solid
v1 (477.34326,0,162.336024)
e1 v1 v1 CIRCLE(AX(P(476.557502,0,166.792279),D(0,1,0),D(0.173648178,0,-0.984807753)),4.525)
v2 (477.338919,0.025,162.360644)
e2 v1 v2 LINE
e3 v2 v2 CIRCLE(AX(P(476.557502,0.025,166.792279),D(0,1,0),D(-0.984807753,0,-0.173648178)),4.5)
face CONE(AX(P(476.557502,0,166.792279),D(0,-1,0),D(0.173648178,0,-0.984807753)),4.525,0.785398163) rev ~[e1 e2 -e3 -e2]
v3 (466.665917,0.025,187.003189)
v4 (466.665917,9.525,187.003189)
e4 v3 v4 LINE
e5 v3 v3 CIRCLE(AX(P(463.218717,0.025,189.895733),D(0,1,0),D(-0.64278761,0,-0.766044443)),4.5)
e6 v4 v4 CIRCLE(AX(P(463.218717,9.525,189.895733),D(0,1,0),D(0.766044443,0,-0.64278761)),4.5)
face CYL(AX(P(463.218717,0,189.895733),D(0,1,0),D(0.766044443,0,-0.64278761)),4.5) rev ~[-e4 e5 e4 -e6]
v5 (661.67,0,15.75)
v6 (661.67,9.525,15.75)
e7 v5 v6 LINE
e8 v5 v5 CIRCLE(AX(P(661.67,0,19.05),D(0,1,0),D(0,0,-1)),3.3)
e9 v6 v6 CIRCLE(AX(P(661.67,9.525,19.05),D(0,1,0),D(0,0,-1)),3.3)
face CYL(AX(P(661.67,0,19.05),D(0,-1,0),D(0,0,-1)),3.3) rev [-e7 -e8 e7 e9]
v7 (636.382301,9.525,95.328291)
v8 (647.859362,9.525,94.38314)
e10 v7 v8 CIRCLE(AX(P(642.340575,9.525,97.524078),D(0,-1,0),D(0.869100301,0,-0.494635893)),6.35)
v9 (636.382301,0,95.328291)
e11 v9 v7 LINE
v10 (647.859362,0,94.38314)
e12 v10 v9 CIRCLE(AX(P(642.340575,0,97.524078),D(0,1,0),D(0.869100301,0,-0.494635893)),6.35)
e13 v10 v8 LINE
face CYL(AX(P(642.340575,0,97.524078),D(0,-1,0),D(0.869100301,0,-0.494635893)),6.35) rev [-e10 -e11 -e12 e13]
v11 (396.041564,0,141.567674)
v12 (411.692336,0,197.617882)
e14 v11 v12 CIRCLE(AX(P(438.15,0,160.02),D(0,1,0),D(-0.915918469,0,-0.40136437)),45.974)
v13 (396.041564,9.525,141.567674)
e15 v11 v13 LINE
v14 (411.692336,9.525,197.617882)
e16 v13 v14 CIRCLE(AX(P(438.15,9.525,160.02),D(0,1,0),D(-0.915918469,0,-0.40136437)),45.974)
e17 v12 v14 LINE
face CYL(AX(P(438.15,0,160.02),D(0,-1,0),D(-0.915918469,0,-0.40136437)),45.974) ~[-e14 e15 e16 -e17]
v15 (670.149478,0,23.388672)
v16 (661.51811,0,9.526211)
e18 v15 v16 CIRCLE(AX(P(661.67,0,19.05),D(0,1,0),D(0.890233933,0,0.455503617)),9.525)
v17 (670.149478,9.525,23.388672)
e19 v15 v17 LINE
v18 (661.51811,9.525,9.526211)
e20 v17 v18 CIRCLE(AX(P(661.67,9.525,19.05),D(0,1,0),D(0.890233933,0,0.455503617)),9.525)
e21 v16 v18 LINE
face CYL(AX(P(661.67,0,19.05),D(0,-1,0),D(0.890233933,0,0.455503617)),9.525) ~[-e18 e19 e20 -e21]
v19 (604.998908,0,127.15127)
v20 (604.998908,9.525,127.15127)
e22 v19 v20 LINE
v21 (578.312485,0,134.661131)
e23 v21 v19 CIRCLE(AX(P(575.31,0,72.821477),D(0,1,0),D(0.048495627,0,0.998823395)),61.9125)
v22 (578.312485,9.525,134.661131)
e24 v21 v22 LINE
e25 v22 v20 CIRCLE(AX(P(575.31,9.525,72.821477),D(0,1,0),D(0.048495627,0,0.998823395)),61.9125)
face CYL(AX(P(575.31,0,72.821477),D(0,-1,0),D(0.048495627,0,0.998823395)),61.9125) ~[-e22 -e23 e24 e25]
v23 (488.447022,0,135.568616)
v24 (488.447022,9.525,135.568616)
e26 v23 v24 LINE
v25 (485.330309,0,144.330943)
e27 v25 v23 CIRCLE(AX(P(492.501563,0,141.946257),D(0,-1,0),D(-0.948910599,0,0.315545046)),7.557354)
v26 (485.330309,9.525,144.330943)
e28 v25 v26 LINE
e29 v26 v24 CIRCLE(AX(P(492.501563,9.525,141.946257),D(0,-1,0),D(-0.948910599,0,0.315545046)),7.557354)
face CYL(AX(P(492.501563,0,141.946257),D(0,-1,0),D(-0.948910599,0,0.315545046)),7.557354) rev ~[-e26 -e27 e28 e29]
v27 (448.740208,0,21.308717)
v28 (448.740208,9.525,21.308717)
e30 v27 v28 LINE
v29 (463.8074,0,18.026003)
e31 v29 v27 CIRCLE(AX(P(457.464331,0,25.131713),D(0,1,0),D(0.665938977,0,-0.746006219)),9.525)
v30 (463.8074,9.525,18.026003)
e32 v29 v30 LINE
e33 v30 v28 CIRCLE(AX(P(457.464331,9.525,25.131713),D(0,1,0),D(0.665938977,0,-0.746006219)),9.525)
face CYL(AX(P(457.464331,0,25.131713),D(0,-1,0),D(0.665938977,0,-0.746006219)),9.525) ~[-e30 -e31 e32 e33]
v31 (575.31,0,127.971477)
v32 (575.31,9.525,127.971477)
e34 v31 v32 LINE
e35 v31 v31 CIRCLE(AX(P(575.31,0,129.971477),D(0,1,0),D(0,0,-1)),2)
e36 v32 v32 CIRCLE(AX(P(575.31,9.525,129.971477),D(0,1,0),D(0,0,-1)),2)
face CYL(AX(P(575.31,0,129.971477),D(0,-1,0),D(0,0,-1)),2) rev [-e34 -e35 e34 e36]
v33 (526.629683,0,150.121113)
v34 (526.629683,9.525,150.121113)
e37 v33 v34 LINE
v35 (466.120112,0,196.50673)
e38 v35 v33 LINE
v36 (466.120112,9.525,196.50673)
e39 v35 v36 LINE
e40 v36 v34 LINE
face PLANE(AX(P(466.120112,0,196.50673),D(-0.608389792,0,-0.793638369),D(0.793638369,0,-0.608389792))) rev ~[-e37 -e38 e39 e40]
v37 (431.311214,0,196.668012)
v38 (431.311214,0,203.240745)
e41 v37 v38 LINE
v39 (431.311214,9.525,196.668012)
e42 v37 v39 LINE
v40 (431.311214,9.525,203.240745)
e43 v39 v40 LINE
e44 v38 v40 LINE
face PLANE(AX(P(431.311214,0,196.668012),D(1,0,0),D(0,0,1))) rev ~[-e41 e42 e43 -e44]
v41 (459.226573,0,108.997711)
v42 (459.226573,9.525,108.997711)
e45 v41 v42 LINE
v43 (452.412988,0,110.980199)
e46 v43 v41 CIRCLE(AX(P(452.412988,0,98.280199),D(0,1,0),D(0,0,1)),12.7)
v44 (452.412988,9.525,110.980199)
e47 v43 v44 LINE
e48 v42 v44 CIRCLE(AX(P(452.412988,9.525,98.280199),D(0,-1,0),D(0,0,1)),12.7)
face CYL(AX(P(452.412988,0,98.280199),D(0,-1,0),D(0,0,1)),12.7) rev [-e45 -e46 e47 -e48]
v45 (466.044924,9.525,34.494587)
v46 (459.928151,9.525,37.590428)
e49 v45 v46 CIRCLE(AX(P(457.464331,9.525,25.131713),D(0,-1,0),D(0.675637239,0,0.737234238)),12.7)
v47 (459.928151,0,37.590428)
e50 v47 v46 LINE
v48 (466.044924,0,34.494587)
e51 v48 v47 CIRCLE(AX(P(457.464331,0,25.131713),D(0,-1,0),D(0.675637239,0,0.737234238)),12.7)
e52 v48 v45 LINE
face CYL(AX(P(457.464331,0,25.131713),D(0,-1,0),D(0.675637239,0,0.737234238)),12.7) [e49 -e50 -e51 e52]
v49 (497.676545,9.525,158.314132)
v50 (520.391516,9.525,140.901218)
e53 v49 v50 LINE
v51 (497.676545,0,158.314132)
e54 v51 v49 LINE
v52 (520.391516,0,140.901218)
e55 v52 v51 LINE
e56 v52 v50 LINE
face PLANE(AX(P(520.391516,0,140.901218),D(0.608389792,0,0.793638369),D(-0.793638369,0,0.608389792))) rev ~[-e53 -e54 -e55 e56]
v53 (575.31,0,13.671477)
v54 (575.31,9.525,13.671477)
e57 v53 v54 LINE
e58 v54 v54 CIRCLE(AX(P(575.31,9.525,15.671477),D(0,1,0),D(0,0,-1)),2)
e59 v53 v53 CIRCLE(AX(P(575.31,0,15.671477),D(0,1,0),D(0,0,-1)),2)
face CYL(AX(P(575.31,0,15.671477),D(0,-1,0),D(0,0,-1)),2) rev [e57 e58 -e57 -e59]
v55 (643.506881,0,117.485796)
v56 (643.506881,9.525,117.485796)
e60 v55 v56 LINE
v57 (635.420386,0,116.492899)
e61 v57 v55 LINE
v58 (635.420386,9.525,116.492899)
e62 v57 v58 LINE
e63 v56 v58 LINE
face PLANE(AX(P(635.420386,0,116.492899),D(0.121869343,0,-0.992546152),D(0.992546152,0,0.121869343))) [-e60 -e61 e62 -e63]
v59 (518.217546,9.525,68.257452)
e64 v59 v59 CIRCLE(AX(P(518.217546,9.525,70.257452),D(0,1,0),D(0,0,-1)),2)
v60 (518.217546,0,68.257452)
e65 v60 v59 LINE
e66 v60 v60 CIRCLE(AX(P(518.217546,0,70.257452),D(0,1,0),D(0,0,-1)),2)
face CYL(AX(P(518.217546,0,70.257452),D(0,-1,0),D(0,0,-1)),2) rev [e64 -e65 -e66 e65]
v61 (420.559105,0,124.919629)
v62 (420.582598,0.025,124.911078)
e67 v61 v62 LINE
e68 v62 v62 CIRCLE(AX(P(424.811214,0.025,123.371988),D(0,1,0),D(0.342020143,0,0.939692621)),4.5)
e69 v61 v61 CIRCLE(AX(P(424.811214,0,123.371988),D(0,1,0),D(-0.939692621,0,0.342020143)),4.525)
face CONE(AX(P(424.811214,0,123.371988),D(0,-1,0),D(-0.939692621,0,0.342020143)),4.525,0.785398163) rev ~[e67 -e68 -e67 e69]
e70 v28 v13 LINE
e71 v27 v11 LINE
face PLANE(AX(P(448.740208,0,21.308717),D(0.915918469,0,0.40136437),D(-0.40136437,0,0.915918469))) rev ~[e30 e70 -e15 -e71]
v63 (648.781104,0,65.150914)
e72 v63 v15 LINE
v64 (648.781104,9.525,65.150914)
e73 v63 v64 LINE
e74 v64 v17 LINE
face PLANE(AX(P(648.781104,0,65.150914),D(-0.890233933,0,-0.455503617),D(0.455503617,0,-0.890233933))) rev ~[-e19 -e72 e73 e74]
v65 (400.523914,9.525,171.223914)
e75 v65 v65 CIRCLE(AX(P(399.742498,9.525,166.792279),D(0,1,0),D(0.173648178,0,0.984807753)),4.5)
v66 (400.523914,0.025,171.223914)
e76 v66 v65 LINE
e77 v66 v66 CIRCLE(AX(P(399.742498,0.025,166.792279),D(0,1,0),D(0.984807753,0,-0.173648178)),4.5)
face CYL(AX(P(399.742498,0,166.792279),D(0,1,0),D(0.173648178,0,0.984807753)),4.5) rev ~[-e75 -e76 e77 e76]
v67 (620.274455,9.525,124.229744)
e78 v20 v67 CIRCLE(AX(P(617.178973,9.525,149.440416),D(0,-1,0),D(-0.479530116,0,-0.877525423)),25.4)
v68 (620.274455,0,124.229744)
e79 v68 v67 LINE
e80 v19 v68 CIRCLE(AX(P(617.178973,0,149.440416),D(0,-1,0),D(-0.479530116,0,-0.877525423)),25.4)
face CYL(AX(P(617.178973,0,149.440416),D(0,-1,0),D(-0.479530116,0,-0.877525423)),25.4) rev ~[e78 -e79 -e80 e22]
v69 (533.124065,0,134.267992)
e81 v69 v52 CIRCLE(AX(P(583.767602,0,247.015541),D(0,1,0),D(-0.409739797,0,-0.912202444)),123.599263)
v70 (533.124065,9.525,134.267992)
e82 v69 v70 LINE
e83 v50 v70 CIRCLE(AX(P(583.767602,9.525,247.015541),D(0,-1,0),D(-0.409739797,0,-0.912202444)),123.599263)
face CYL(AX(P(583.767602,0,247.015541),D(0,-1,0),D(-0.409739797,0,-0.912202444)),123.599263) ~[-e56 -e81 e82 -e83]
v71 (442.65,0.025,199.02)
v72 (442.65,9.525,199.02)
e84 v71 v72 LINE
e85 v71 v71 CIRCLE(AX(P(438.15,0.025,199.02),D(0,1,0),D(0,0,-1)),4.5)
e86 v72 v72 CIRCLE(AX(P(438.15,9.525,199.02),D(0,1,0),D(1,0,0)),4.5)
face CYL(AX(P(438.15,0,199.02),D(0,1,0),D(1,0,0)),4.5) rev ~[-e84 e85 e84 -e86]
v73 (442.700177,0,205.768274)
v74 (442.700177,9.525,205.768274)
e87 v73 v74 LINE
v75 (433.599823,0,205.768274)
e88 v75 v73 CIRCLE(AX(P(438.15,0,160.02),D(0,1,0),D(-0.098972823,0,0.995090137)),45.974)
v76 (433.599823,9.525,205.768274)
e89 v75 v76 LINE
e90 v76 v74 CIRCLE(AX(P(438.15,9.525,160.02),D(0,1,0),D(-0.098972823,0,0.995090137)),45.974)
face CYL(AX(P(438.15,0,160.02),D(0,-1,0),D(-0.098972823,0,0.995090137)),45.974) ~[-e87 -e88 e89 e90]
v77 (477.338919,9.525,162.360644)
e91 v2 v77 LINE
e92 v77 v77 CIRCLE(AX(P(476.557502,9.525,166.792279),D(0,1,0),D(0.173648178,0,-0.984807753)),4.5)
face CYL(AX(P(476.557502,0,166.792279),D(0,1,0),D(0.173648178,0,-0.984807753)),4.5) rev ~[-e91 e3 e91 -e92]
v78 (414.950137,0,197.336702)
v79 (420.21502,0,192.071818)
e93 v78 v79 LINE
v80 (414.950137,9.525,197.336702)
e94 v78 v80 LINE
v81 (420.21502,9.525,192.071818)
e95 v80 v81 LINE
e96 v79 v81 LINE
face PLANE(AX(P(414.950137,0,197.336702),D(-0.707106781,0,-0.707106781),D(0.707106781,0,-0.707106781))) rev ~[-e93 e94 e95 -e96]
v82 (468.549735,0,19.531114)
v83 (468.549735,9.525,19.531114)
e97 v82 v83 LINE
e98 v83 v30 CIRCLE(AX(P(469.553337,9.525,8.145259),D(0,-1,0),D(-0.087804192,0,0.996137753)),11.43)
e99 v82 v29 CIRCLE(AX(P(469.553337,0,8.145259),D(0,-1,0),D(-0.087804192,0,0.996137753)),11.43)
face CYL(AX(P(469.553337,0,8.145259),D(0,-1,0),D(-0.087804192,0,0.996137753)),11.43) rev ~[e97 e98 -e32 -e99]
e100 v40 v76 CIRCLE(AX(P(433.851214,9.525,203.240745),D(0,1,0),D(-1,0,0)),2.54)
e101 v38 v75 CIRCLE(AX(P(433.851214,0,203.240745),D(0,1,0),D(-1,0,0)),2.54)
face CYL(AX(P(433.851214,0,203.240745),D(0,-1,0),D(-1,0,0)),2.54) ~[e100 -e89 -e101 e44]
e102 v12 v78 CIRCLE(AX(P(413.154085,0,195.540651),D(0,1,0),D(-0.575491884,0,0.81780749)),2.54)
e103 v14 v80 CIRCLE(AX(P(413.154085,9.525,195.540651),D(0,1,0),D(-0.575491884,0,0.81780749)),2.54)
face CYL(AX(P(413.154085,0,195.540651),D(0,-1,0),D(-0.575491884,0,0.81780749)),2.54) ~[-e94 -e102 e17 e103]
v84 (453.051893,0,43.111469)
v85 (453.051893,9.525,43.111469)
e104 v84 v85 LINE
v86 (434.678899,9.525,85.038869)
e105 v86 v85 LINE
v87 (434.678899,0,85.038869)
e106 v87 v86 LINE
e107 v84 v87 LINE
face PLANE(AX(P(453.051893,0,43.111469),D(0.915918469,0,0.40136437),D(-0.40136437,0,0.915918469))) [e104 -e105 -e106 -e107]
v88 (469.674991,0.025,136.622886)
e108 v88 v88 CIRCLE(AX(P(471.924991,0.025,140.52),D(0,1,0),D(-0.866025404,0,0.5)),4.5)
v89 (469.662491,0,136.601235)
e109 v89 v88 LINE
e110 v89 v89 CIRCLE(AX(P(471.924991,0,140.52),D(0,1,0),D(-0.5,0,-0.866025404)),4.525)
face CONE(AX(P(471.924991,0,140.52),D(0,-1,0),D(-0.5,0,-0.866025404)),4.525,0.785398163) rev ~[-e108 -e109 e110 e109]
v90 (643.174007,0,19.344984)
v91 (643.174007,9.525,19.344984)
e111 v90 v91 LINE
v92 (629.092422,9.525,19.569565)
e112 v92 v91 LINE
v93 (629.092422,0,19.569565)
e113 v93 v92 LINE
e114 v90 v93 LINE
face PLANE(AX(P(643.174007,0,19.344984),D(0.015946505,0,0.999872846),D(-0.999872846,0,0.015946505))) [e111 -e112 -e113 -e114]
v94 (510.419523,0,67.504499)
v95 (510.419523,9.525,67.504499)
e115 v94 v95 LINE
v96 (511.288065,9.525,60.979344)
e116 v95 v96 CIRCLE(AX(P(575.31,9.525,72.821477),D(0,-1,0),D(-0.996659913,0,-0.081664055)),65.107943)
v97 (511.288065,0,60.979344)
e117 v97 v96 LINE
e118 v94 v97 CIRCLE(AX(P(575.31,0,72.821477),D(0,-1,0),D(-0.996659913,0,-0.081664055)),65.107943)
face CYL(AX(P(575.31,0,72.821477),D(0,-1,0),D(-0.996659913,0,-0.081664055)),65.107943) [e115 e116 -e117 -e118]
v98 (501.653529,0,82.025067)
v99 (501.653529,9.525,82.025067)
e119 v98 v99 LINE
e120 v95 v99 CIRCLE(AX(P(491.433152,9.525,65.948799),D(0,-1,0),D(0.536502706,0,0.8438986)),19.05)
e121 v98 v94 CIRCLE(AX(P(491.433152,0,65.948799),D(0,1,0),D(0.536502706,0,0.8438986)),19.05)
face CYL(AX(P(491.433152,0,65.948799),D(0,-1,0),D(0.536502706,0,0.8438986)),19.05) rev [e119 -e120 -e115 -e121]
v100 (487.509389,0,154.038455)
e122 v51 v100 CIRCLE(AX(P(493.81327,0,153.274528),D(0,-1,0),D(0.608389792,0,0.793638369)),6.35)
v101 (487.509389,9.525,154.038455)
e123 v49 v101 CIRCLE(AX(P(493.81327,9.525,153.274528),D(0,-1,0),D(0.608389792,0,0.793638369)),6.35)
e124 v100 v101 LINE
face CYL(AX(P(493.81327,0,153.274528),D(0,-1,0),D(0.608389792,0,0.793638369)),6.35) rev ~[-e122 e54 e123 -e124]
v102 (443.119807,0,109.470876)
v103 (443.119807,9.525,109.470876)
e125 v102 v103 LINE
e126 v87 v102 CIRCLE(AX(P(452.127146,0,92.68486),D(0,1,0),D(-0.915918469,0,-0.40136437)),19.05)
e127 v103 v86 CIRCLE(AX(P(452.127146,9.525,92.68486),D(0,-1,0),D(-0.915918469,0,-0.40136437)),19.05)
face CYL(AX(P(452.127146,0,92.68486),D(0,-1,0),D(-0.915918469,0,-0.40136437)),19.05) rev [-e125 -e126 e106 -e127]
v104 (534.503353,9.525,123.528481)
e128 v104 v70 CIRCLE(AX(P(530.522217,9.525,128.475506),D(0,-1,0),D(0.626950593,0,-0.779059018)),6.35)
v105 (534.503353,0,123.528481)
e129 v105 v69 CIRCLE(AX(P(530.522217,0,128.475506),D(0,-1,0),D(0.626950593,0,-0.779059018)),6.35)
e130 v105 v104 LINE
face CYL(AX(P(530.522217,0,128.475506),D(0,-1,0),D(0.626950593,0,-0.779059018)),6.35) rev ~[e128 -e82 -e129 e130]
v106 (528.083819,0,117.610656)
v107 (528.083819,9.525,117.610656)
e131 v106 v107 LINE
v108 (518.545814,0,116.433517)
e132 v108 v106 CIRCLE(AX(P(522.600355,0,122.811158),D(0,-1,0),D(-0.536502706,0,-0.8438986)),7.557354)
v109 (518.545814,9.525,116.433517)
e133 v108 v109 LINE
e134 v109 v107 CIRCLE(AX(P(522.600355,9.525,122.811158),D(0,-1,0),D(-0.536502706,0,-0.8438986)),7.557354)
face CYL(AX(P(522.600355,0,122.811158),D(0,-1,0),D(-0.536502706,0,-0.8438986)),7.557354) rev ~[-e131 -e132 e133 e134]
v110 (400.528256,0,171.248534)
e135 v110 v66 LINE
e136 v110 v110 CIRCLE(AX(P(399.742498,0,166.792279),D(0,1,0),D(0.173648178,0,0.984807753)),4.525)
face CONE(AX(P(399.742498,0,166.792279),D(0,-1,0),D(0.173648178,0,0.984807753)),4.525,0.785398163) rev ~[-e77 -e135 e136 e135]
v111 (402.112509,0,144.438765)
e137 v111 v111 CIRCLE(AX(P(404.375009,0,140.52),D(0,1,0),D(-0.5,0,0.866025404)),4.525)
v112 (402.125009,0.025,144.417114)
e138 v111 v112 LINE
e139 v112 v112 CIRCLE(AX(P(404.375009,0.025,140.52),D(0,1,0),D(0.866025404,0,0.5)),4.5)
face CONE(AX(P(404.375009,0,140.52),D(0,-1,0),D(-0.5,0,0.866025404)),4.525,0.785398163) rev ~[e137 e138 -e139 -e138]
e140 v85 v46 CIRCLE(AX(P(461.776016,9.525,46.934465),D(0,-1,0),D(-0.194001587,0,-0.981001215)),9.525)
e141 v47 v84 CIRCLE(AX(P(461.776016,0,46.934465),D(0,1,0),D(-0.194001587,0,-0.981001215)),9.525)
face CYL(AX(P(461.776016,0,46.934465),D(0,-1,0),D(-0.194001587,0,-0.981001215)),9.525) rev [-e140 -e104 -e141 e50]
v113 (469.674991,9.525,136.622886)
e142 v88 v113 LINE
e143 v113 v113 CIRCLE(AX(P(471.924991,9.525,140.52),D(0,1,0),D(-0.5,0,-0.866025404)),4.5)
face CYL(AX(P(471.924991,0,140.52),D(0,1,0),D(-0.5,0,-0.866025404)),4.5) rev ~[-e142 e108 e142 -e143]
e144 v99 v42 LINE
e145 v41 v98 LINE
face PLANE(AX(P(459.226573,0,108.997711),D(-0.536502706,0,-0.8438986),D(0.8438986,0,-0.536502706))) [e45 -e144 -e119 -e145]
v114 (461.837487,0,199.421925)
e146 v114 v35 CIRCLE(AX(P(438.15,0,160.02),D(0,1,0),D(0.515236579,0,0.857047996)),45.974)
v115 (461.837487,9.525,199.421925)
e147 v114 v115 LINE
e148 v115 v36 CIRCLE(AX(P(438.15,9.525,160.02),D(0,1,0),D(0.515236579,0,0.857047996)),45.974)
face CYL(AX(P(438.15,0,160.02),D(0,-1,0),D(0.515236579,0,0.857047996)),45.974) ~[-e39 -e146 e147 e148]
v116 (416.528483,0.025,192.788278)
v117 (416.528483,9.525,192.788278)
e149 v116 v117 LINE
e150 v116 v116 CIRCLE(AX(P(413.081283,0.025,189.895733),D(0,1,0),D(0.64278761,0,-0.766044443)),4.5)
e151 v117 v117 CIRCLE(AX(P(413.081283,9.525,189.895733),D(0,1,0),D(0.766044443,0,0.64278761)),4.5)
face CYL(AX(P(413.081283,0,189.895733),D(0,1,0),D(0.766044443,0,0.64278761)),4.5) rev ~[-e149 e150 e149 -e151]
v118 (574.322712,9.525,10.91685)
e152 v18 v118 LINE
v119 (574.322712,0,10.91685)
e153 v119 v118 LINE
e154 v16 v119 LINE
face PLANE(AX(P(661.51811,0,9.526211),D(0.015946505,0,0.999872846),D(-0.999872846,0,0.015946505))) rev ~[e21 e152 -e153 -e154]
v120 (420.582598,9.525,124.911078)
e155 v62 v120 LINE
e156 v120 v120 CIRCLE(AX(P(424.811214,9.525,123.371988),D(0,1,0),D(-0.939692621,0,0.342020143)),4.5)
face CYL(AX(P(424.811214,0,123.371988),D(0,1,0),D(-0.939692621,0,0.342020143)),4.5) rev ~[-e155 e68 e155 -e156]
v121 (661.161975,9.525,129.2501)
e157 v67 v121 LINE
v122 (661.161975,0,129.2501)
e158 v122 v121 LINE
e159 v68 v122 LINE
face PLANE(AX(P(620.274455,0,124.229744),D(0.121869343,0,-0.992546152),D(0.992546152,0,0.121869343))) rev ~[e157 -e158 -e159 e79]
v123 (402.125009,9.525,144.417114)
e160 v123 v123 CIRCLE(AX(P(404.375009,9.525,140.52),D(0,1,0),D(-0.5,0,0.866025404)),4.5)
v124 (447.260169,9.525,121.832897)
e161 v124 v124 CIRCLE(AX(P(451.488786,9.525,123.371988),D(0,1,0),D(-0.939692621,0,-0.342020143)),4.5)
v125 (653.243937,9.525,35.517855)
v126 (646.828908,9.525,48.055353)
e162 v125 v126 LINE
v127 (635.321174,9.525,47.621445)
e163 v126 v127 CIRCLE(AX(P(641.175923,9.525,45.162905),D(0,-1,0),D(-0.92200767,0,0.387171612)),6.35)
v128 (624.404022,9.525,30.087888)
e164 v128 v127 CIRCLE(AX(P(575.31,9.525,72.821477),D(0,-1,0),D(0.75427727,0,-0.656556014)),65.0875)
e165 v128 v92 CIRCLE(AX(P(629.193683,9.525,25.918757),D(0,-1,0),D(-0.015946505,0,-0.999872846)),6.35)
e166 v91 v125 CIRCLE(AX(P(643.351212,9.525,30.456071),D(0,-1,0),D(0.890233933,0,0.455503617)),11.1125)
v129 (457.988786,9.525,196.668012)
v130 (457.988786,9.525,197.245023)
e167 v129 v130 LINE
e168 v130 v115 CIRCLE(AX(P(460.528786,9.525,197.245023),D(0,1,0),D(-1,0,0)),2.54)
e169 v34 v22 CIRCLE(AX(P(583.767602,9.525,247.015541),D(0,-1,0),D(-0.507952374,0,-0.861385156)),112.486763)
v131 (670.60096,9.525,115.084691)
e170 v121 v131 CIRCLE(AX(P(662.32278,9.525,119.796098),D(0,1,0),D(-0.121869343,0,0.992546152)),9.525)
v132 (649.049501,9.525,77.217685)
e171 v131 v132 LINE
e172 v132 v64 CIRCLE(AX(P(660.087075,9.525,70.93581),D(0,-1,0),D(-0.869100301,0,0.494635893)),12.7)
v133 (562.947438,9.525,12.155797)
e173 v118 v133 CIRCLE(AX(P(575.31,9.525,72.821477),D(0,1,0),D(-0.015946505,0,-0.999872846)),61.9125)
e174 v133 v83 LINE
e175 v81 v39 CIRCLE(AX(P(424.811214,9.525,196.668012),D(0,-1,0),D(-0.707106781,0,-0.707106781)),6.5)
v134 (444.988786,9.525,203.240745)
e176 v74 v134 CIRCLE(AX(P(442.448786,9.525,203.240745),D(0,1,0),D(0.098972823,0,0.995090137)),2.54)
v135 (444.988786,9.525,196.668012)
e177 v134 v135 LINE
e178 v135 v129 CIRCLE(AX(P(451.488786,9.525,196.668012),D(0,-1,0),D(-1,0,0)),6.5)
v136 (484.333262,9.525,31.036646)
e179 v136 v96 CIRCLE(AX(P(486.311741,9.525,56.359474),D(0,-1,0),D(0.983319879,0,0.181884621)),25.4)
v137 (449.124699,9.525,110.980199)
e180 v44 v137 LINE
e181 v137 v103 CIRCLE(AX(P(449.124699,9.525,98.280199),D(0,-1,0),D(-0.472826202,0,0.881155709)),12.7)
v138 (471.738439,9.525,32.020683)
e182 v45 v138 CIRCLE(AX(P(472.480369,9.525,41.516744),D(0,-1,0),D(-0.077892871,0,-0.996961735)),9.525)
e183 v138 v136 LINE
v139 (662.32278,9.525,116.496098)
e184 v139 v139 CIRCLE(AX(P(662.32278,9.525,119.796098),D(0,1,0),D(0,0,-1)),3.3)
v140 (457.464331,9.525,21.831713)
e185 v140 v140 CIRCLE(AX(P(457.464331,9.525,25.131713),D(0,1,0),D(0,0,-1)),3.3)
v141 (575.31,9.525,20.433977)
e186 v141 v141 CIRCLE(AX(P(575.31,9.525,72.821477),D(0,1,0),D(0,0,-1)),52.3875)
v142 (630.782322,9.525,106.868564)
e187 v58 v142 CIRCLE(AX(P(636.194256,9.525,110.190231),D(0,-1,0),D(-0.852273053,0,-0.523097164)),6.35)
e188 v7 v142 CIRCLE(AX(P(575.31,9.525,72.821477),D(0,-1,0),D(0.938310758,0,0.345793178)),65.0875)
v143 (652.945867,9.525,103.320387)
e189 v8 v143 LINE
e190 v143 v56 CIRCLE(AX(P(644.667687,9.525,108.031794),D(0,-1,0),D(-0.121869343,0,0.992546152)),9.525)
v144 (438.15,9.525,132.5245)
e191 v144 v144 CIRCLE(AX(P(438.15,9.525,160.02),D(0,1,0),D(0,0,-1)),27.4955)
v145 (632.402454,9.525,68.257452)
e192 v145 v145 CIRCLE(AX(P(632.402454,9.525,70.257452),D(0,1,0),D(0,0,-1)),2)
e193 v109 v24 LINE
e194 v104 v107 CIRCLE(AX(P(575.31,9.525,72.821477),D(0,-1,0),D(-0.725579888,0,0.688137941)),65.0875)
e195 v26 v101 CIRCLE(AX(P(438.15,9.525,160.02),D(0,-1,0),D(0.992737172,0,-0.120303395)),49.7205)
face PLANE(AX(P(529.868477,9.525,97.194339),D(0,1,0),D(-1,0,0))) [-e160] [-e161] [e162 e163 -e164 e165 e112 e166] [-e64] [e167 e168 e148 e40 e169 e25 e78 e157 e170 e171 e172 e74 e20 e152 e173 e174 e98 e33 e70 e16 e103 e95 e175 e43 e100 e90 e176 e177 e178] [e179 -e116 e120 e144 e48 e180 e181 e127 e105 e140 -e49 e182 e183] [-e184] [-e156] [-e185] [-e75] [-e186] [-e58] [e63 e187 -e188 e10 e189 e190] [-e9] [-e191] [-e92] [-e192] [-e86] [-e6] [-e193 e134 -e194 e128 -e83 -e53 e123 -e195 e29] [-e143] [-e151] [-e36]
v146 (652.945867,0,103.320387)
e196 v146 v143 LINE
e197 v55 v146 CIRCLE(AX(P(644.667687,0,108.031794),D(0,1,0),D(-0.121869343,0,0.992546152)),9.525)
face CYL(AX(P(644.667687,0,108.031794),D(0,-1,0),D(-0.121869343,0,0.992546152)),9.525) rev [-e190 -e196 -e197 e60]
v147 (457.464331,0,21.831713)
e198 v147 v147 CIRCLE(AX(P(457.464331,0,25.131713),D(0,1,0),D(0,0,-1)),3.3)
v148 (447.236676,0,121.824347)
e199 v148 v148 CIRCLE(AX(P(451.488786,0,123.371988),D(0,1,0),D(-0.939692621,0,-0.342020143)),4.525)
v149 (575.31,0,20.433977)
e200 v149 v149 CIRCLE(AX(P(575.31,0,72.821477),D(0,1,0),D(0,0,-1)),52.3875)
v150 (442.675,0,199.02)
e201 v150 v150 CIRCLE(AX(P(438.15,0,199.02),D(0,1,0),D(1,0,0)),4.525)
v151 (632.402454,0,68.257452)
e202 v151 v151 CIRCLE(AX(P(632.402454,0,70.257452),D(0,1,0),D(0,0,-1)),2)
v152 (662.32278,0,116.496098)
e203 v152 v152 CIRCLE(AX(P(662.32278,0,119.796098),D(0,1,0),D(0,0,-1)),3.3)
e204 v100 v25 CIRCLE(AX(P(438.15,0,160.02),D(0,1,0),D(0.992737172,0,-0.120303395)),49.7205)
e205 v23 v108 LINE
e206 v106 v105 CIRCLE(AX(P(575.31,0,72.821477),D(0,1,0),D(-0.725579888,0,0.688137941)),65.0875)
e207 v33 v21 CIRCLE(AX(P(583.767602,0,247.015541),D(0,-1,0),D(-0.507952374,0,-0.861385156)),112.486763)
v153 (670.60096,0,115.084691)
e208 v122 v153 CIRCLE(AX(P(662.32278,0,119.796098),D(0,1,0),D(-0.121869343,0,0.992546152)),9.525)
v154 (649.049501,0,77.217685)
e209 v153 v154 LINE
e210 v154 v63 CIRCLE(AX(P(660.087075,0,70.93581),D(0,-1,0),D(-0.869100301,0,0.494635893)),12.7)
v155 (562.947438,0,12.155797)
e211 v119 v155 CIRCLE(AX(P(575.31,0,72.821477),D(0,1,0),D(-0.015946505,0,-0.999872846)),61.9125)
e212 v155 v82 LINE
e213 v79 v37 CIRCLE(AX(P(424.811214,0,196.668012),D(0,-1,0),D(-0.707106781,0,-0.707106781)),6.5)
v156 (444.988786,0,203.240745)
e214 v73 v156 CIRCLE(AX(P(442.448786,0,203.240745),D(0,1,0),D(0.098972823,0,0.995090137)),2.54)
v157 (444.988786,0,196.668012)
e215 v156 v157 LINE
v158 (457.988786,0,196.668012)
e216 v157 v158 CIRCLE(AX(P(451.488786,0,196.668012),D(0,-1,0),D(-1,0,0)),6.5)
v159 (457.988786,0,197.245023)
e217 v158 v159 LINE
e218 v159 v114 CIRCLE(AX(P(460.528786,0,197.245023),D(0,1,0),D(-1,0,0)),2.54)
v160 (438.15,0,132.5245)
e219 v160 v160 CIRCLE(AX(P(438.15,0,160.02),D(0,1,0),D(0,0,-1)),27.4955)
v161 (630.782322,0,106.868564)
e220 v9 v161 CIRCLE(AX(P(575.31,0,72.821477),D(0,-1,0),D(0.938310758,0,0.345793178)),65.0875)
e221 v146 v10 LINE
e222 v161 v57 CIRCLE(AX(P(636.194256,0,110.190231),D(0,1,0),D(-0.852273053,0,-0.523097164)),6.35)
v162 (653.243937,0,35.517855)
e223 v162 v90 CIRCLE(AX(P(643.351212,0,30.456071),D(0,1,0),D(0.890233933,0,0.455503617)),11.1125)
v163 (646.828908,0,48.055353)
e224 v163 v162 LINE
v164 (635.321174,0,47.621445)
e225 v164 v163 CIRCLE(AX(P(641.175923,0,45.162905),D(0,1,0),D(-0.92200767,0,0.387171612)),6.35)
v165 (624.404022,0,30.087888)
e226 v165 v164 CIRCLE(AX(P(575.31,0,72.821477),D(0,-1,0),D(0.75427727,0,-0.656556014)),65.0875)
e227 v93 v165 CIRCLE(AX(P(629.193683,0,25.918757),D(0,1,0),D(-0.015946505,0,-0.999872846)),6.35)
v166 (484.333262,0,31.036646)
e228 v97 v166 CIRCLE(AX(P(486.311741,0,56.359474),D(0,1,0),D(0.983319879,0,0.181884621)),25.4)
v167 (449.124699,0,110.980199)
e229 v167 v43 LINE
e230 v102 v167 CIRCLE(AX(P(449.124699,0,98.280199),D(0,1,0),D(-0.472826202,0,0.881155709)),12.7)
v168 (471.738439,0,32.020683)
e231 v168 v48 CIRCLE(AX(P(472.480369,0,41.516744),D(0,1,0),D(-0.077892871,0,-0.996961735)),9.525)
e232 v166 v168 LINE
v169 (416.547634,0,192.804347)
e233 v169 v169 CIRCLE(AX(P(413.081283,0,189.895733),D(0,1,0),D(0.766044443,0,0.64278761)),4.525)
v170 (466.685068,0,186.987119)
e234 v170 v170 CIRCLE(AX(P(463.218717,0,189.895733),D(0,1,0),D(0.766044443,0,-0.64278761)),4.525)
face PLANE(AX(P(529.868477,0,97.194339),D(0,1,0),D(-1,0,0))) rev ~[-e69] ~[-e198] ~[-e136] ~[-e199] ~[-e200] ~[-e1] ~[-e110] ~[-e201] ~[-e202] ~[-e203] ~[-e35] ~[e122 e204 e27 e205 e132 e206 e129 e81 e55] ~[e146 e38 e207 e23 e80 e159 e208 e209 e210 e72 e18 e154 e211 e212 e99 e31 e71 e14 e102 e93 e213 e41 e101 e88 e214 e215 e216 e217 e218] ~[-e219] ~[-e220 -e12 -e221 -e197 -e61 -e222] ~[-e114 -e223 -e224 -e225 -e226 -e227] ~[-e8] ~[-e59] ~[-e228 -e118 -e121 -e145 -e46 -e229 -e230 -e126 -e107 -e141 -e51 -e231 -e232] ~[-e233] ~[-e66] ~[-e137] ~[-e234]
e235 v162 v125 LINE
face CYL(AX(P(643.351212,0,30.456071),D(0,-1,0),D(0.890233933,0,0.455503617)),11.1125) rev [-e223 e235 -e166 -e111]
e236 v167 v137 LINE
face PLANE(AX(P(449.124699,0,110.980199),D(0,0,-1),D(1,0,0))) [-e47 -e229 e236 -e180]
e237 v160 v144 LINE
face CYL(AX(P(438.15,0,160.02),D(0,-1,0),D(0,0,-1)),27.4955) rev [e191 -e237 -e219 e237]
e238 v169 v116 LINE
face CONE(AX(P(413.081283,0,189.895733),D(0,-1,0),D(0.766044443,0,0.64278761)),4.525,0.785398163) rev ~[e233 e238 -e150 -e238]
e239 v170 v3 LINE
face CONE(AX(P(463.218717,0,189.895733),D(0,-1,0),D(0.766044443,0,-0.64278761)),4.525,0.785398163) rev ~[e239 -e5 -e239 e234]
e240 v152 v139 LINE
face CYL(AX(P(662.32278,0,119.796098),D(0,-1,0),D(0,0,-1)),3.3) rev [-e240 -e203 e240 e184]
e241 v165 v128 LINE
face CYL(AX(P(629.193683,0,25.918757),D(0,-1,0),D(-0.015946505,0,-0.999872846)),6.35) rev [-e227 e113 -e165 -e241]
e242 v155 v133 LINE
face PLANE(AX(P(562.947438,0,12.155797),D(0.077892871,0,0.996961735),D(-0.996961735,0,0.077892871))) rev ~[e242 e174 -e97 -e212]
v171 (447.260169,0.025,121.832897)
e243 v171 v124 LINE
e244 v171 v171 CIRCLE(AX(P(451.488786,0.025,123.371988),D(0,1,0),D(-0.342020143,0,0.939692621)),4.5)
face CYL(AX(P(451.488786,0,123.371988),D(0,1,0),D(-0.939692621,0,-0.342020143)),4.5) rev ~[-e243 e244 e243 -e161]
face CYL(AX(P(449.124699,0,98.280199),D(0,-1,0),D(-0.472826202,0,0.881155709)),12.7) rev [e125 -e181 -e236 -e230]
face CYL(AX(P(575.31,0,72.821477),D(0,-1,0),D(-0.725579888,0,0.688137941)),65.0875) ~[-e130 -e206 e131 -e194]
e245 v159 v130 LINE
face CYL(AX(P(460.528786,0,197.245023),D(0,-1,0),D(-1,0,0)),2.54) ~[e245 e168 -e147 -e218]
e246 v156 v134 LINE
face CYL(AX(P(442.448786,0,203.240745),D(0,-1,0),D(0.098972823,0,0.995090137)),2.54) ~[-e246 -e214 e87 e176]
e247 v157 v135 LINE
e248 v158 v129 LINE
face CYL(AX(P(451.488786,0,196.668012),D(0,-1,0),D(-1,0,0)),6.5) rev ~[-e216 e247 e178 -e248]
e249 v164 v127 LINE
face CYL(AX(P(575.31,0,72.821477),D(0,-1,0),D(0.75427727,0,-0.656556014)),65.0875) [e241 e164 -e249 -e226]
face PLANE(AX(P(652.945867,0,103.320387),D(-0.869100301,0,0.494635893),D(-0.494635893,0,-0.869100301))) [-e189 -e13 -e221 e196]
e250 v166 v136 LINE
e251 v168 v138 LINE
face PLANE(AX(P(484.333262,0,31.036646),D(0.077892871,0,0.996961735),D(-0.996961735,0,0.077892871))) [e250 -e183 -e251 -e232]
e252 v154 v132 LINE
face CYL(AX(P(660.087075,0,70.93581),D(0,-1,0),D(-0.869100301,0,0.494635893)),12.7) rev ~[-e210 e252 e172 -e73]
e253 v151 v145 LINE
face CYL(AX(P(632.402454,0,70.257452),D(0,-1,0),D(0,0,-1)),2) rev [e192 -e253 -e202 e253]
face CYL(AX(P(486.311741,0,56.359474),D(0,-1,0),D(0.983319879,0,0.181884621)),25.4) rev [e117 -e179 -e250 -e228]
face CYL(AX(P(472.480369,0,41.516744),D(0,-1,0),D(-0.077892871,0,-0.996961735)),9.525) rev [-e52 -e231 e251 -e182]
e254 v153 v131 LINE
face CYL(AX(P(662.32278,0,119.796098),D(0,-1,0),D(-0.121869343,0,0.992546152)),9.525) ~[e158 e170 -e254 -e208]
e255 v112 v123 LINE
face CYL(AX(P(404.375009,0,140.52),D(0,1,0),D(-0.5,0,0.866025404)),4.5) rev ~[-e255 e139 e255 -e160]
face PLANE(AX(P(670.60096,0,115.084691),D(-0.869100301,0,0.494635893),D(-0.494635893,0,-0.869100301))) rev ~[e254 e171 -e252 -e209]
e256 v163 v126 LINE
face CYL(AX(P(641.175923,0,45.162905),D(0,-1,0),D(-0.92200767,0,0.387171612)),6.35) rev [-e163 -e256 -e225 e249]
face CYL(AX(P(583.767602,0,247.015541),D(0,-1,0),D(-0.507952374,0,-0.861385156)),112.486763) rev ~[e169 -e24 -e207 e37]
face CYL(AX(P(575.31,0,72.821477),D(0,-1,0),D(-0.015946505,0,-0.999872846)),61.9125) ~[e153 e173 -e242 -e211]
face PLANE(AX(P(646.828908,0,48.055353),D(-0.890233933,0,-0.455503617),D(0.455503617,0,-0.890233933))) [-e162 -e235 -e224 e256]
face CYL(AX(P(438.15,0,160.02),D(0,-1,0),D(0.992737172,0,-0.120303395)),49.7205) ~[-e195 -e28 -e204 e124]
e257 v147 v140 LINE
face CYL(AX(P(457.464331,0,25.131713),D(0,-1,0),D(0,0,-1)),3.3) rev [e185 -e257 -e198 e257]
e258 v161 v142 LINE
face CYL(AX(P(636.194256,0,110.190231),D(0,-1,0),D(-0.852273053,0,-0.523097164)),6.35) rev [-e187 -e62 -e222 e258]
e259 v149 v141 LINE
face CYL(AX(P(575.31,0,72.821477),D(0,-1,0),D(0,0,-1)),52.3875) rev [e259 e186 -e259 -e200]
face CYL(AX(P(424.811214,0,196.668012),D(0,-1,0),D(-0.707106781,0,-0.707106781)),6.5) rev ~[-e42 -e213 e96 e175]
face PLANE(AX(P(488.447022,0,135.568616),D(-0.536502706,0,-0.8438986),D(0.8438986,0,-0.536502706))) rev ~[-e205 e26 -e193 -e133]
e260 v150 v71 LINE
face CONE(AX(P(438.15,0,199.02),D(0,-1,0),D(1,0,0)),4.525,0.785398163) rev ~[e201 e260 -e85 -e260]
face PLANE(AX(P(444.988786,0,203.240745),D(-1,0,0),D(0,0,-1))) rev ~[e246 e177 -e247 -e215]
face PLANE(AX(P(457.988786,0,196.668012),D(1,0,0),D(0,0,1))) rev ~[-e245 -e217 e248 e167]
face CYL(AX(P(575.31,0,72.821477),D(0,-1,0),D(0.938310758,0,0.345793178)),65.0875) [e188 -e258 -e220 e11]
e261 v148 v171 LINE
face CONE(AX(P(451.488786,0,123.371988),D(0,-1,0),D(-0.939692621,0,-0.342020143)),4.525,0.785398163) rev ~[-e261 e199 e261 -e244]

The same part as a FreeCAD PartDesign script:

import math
import FreeCAD as App
import Part
import Sketcher
from FreeCAD import Vector
Q = App.Units.Quantity

doc = App.newDocument("Part")
body = doc.addObject("PartDesign::Body", "Body")

sketch1 = body.newObject("Sketcher::SketchObject", "Sketch")
sketch1.AttachmentSupport = (doc.getObject("XZ_Plane"), [""])
sketch1.MapMode = "FlatFace"
sketch1.addGeometry([
    Part.LineSegment(Vector(661.5, 9.5, 0), Vector(574.3, 10.9, 0)),
    Part.ArcOfCircle(Part.Circle(Vector(575.3, 72.8, 0), Vector(0, 0, 1), 61.9), math.radians(-101.52), math.radians(-90.91)),
    Part.LineSegment(Vector(562.9, 12.2, 0), Vector(468.5, 19.5, 0)),
    Part.ArcOfCircle(Part.Circle(Vector(469.6, 8.1, 0), Vector(0, 0, 1), 11.4), math.radians(95), math.radians(120)),
    Part.ArcOfCircle(Part.Circle(Vector(457.5, 25.1, 0), Vector(0, 0, 1), 9.5), math.radians(-156), math.radians(-48)),
    Part.LineSegment(Vector(448.7, 21.3, 0), Vector(396, 141.6, 0)),
    Part.ArcOfCircle(Part.Circle(Vector(438.2, 160, 0), Vector(0, 0, 1), 46), math.radians(125), math.radians(204)),
    Part.ArcOfCircle(Part.Circle(Vector(413.2, 195.5, 0), Vector(0, 0, 1), 2.5), math.radians(45), math.radians(125)),
    Part.LineSegment(Vector(415, 197.3, 0), Vector(420.2, 192.1, 0)),
    Part.ArcOfCircle(Part.Circle(Vector(424.8, 196.7, 0), Vector(0, 0, 1), 6.5), math.radians(-135), math.radians(0)),
    Part.LineSegment(Vector(431.3, 196.7, 0), Vector(431.3, 203.2, 0)),
    Part.ArcOfCircle(Part.Circle(Vector(433.9, 203.2, 0), Vector(0, 0, 1), 2.5), math.radians(96), math.radians(180)),
    Part.ArcOfCircle(Part.Circle(Vector(438.1, 160, 0), Vector(0, 0, 1), 46), math.radians(84.32), math.radians(95.68)),
    Part.ArcOfCircle(Part.Circle(Vector(442.4, 203.2, 0), Vector(0, 0, 1), 2.5), math.radians(0), math.radians(84)),
    Part.LineSegment(Vector(445, 203.2, 0), Vector(445, 196.7, 0)),
    Part.ArcOfCircle(Part.Circle(Vector(451.5, 196.7, 0), Vector(0, 0, 1), 6.5), math.radians(180), math.radians(360)),
    Part.LineSegment(Vector(458, 196.7, 0), Vector(458, 197.2, 0)),
    Part.ArcOfCircle(Part.Circle(Vector(460.5, 197.2, 0), Vector(0, 0, 1), 2.5), math.radians(59), math.radians(180)),
    Part.ArcOfCircle(Part.Circle(Vector(438.2, 160, 0), Vector(0, 0, 1), 46), math.radians(52.53), math.radians(58.99)),
    Part.LineSegment(Vector(466.1, 196.5, 0), Vector(526.6, 150.1, 0)),
    Part.ArcOfCircle(Part.Circle(Vector(583.8, 247, 0), Vector(0, 0, 1), 112.5), math.radians(-121), math.radians(-93)),
    Part.ArcOfCircle(Part.Circle(Vector(575.3, 72.8, 0), Vector(0, 0, 1), 61.9), math.radians(61), math.radians(87)),
    Part.ArcOfCircle(Part.Circle(Vector(617.2, 149.4, 0), Vector(0, 0, 1), 25.4), math.radians(-119), math.radians(-83)),
    Part.LineSegment(Vector(620.3, 124.2, 0), Vector(661.2, 129.3, 0)),
    Part.ArcOfCircle(Part.Circle(Vector(662.3, 119.8, 0), Vector(0, 0, 1), 9.5), math.radians(-30), math.radians(97)),
    Part.LineSegment(Vector(670.6, 115.1, 0), Vector(649, 77.2, 0)),
    Part.ArcOfCircle(Part.Circle(Vector(660.1, 70.9, 0), Vector(0, 0, 1), 12.7), math.radians(150), math.radians(207)),
    Part.LineSegment(Vector(648.8, 65.2, 0), Vector(670.1, 23.4, 0)),
    Part.ArcOfCircle(Part.Circle(Vector(661.7, 19.1, 0), Vector(0, 0, 1), 9.5), math.radians(-91), math.radians(27)),
    Part.Circle(Vector(661.7, 19.1, 0), Vector(0, 0, 1), 3.3),
    Part.Circle(Vector(575.3, 15.7, 0), Vector(0, 0, 1), 2),
    Part.Circle(Vector(632.4, 70.3, 0), Vector(0, 0, 1), 2),
    Part.Circle(Vector(575.3, 72.8, 0), Vector(0, 0, 1), 52.4),
    Part.Circle(Vector(457.5, 25.1, 0), Vector(0, 0, 1), 3.3),
    Part.Circle(Vector(518.2, 70.3, 0), Vector(0, 0, 1), 2),
    Part.Circle(Vector(662.3, 119.8, 0), Vector(0, 0, 1), 3.3),
    Part.Circle(Vector(575.3, 130, 0), Vector(0, 0, 1), 2),
    Part.Circle(Vector(438.1, 160, 0), Vector(0, 0, 1), 27.5),
], False)
sketch1.addConstraint([
    Sketcher.Constraint("Tangent", 0, 2, 1, 2),
    Sketcher.Constraint("Coincident", 1, 1, 2, 1),
    Sketcher.Constraint("Coincident", 2, 2, 3, 1),
    Sketcher.Constraint("Coincident", 3, 2, 4, 2),
    Sketcher.Constraint("Tangent", 4, 1, 5, 1),
    Sketcher.Constraint("Tangent", 5, 2, 6, 2),
    Sketcher.Constraint("Tangent", 6, 1, 7, 2),
    Sketcher.Constraint("Tangent", 7, 1, 8, 1),
    Sketcher.Constraint("Tangent", 8, 2, 9, 1),
    Sketcher.Constraint("Tangent", 9, 2, 10, 1),
    Sketcher.Constraint("Tangent", 10, 2, 11, 2),
    Sketcher.Constraint("Tangent", 11, 1, 12, 2),
    Sketcher.Constraint("Tangent", 12, 1, 13, 2),
    Sketcher.Constraint("Tangent", 13, 1, 14, 1),
    Sketcher.Constraint("Tangent", 14, 2, 15, 1),
    Sketcher.Constraint("Tangent", 15, 2, 16, 1),
    Sketcher.Constraint("Tangent", 16, 2, 17, 2),
    Sketcher.Constraint("Tangent", 17, 1, 18, 2),
    Sketcher.Constraint("Tangent", 18, 1, 19, 1),
    Sketcher.Constraint("Coincident", 19, 2, 20, 1),
    Sketcher.Constraint("Tangent", 20, 2, 21, 2),
    Sketcher.Constraint("Tangent", 21, 1, 22, 1),
    Sketcher.Constraint("Tangent", 22, 2, 23, 1),
    Sketcher.Constraint("Tangent", 23, 2, 24, 2),
    Sketcher.Constraint("Tangent", 24, 1, 25, 1),
    Sketcher.Constraint("Tangent", 25, 2, 26, 1),
    Sketcher.Constraint("Tangent", 26, 2, 27, 1),
    Sketcher.Constraint("Tangent", 27, 2, 28, 2),
    Sketcher.Constraint("Tangent", 28, 1, 0, 1),
    Sketcher.Constraint("Vertical", 10),
    Sketcher.Constraint("Vertical", 14),
    Sketcher.Constraint("Vertical", 16),
    Sketcher.Constraint("Coincident", 12, 3, 6, 3),
    Sketcher.Constraint("Coincident", 18, 3, 6, 3),
    Sketcher.Constraint("Coincident", 21, 3, 1, 3),
    Sketcher.Constraint("Coincident", 29, 3, 28, 3),
    Sketcher.Constraint("Coincident", 32, 3, 1, 3),
    Sketcher.Constraint("Coincident", 33, 3, 4, 3),
    Sketcher.Constraint("Coincident", 35, 3, 24, 3),
    Sketcher.Constraint("Coincident", 37, 3, 6, 3),
    Sketcher.Constraint("Equal", 7, 11),
    Sketcher.Constraint("Equal", 6, 12),
    Sketcher.Constraint("Equal", 11, 13),
    Sketcher.Constraint("Equal", 9, 15),
    Sketcher.Constraint("Equal", 13, 17),
    Sketcher.Constraint("Equal", 12, 18),
    Sketcher.Constraint("Equal", 1, 21),
    Sketcher.Constraint("Equal", 4, 24),
    Sketcher.Constraint("Equal", 24, 28),
    Sketcher.Constraint("Equal", 30, 31),
    Sketcher.Constraint("Equal", 29, 33),
    Sketcher.Constraint("Equal", 31, 34),
    Sketcher.Constraint("Equal", 33, 35),
    Sketcher.Constraint("Equal", 34, 36),
    Sketcher.Constraint("Horizontal", 11, 3, 13, 3),
    Sketcher.Constraint("Horizontal", 9, 3, 15, 3),
    Sketcher.Constraint("Horizontal", 31, 3, 34, 3),
    Sketcher.Constraint("Vertical", 21, 3, 30, 3),
    Sketcher.Constraint("Vertical", 32, 3, 36, 3),
    Sketcher.Constraint("Radius", 22, Q("1 in")),
    Sketcher.Constraint("Radius", 7, Q("0.1 in")),
    Sketcher.Constraint("Radius", 26, Q("0.5 in")),
    Sketcher.Constraint("Radius", 3, Q("0.45 in")),
    Sketcher.Constraint("Radius", 6, Q("1.81 in")),
    Sketcher.Constraint("Diameter", 32, Q("4.125 in")),
    Sketcher.Constraint("Diameter", 37, Q("2.165 in")),
    Sketcher.Constraint("Angle", 8, Q("-45 deg")),
    Sketcher.Constraint("Angle", 23, Q("7 deg")),
    Sketcher.Constraint("Radius", 1, Q("2.4375 in")),
    Sketcher.Constraint("Radius", 4, Q("0.375 in")),
    Sketcher.Constraint("DistanceY", -1, 1, 6, 3, Q("6.3 in")),
    Sketcher.Constraint("DistanceX", 6, 3, 1, 3, Q("5.4 in")),
    Sketcher.Constraint("DistanceX", 1, 3, 28, 3, Q("3.4 in")),
    Sketcher.Constraint("Diameter", 29, Q("6.6 mm")),
    Sketcher.Constraint("Diameter", 30, Q("4 mm")),
    Sketcher.Constraint("DistanceX", -1, 1, 1, 3, Q("22.65 in")),
    Sketcher.Constraint("DistanceY", -1, 1, 28, 3, Q("0.75 in")),
    Sketcher.Constraint("Radius", 9, Q("6.5 mm")),
    Sketcher.Constraint("DistanceY", 30, 3, 1, 3, Q("2.25 in")),
    Sketcher.Constraint("DistanceY", 32, 3, 36, 3, Q("2.25 in")),
    Sketcher.Constraint("DistanceX", -1, 1, 24, 3, Q("26.0757 in")),
    Sketcher.Constraint("Radius", 20, Q("112.486763 mm")),
    Sketcher.Constraint("DistanceY", 2, 2, 34, 3, Q("1.9970999 in")),
    Sketcher.Constraint("DistanceY", 16, 1, 16, 2, Q("0.57701 mm")),
    Sketcher.Constraint("DistanceX", -1, 1, 20, 3, Q("583.767602 mm")),
    Sketcher.Constraint("DistanceX", -1, 1, 3, 2, Q("463.8074 mm")),
    Sketcher.Constraint("DistanceY", -1, 1, 7, 1, Q("197.336702 mm")),
    Sketcher.Constraint("DistanceY", -1, 1, 23, 2, Q("129.2501 mm")),
    Sketcher.Constraint("DistanceX", -1, 1, 25, 2, Q("649.049501 mm")),
    Sketcher.Constraint("DistanceY", 4, 3, 9, 3, Q("171.5363 mm")),
    Sketcher.Constraint("DistanceX", 22, 3, 26, 3, Q("42.908101 mm")),
    Sketcher.Constraint("DistanceX", 2, 2, 3, 3, Q("1.003602 mm")),
    Sketcher.Constraint("DistanceY", 2, 2, 4, 3, Q("5.600599 mm")),
    Sketcher.Constraint("DistanceX", 22, 3, 23, 2, Q("43.983001 mm")),
    Sketcher.Constraint("DistanceX", -1, 1, 4, 3, Q("457.464331 mm")),
    Sketcher.Constraint("DistanceX", -1, 1, 1, 1, Q("562.947438 mm")),
    Sketcher.Constraint("DistanceX", 31, 3, 26, 3, Q("27.684621 mm")),
    Sketcher.Constraint("DistanceX", 2, 2, 34, 3, Q("49.667811 mm")),
    Sketcher.Constraint("DistanceX", 18, 1, 19, 2, Q("60.509571 mm")),
])
pad1 = body.newObject("PartDesign::Pad", "Pad")
pad1.Profile = sketch1
pad1.Length = Q("0.375 in")
pad1.Reversed = True

sketch2 = body.newObject("Sketcher::SketchObject", "Sketch001")
sketch2.AttachmentSupport = (doc.getObject("XZ_Plane"), [""])
sketch2.MapMode = "FlatFace"
sketch2.addGeometry(Part.Circle(Vector(438.1, 199, 0), Vector(0, 0, 1), 4.5), False)
sketch2.addConstraint([
    Sketcher.Constraint("Diameter", 0, Q("9 mm")),
    Sketcher.Constraint("DistanceX", -1, 1, 0, 3, Q("17.25 in")),
    Sketcher.Constraint("DistanceY", -1, 1, 0, 3, Q("199.02 mm")),
])
doc.recompute()
hole = body.newObject("PartDesign::Hole", "Hole")
hole.Profile = sketch2
hole.ThreadType = "None"
hole.Diameter = 9
hole.DepthType = "ThroughAll"
hole.HoleCutType = "Countersink"
hole.HoleCutDiameter = 9.05
hole.HoleCutCountersinkAngle = 90
doc.recompute()

datumline = body.newObject("PartDesign::Line", "DatumLine")
datumline.Placement = App.Placement(Vector(438.15, 0, 160.02), App.Rotation(Vector(0, 0, 1), Vector(0, 1, 0)))
polarpattern = body.newObject("PartDesign::PolarPattern", "PolarPattern")
polarpattern.Originals = [hole]
polarpattern.Axis = (datumline, [""])
polarpattern.Angle = 360
polarpattern.Occurrences = 9
body.Tip = polarpattern

sketch3 = body.newObject("Sketcher::SketchObject", "Sketch002")
sketch3.AttachmentSupport = (doc.getObject("XZ_Plane"), [""])
sketch3.MapMode = "FlatFace"
sketch3.addGeometry([
    Part.LineSegment(Vector(501.7, 82, 0), Vector(459.2, 109, 0)),
    Part.ArcOfCircle(Part.Circle(Vector(452.4, 98.3, 0), Vector(0, 0, 1), 12.7), math.radians(58), math.radians(90)),
    Part.LineSegment(Vector(452.4, 111, 0), Vector(449.1, 111, 0)),
    Part.ArcOfCircle(Part.Circle(Vector(449.1, 98.3, 0), Vector(0, 0, 1), 12.7), math.radians(90), math.radians(118)),
    Part.ArcOfCircle(Part.Circle(Vector(452.1, 92.7, 0), Vector(0, 0, 1), 19.1), math.radians(118), math.radians(204)),
    Part.LineSegment(Vector(434.7, 85, 0), Vector(453.1, 43.1, 0)),
    Part.ArcOfCircle(Part.Circle(Vector(461.8, 46.9, 0), Vector(0, 0, 1), 9.5), math.radians(-156), math.radians(-101)),
    Part.ArcOfCircle(Part.Circle(Vector(457.5, 25.1, 0), Vector(0, 0, 1), 12.7), math.radians(47), math.radians(79)),
    Part.ArcOfCircle(Part.Circle(Vector(472.5, 41.5, 0), Vector(0, 0, 1), 9.5), math.radians(-133), math.radians(-94)),
    Part.LineSegment(Vector(471.7, 32, 0), Vector(484.3, 31, 0)),
    Part.ArcOfCircle(Part.Circle(Vector(486.3, 56.4, 0), Vector(0, 0, 1), 25.4), math.radians(-94), math.radians(10)),
    Part.ArcOfCircle(Part.Circle(Vector(575.3, 72.8, 0), Vector(0, 0, 1), 65.1), math.radians(-175.32), math.radians(-169.52)),
    Part.ArcOfCircle(Part.Circle(Vector(491.4, 65.9, 0), Vector(0, 0, 1), 19), math.radians(5), math.radians(58)),
    Part.LineSegment(Vector(488.4, 135.6, 0), Vector(518.5, 116.4, 0)),
    Part.ArcOfCircle(Part.Circle(Vector(522.6, 122.8, 0), Vector(0, 0, 1), 7.6), math.radians(-122), math.radians(-43)),
    Part.ArcOfCircle(Part.Circle(Vector(575.3, 72.8, 0), Vector(0, 0, 1), 65.1), math.radians(128.83), math.radians(136.52)),
    Part.ArcOfCircle(Part.Circle(Vector(530.5, 128.5, 0), Vector(0, 0, 1), 6.3), math.radians(-51), math.radians(66)),
    Part.ArcOfCircle(Part.Circle(Vector(583.8, 247, 0), Vector(0, 0, 1), 123.6), math.radians(-120.85), math.radians(-114.19)),
    Part.LineSegment(Vector(520.4, 140.9, 0), Vector(497.7, 158.3, 0)),
    Part.ArcOfCircle(Part.Circle(Vector(493.8, 153.3, 0), Vector(0, 0, 1), 6.3), math.radians(53), math.radians(173)),
    Part.ArcOfCircle(Part.Circle(Vector(438.1, 160, 0), Vector(0, 0, 1), 49.7), math.radians(-18.39), math.radians(-6.91)),
    Part.ArcOfCircle(Part.Circle(Vector(492.5, 141.9, 0), Vector(0, 0, 1), 7.6), math.radians(162), math.radians(238)),
    Part.LineSegment(Vector(643.5, 117.5, 0), Vector(635.4, 116.5, 0)),
    Part.ArcOfCircle(Part.Circle(Vector(636.2, 110.2, 0), Vector(0, 0, 1), 6.3), math.radians(97), math.radians(212)),
    Part.ArcOfCircle(Part.Circle(Vector(575.3, 72.8, 0), Vector(0, 0, 1), 65.1), math.radians(20.23), math.radians(31.54)),
    Part.ArcOfCircle(Part.Circle(Vector(642.3, 97.5, 0), Vector(0, 0, 1), 6.3), math.radians(-160), math.radians(-30)),
    Part.LineSegment(Vector(647.9, 94.4, 0), Vector(652.9, 103.3, 0)),
    Part.ArcOfCircle(Part.Circle(Vector(644.7, 108, 0), Vector(0, 0, 1), 9.5), math.radians(-30), math.radians(97)),
    Part.LineSegment(Vector(629.1, 19.6, 0), Vector(643.2, 19.3, 0)),
    Part.ArcOfCircle(Part.Circle(Vector(643.4, 30.5, 0), Vector(0, 0, 1), 11.1), math.radians(-91), math.radians(27)),
    Part.LineSegment(Vector(653.2, 35.5, 0), Vector(646.8, 48.1, 0)),
    Part.ArcOfCircle(Part.Circle(Vector(641.2, 45.2, 0), Vector(0, 0, 1), 6.3), math.radians(27), math.radians(157)),
    Part.ArcOfCircle(Part.Circle(Vector(575.3, 72.8, 0), Vector(0, 0, 1), 65.1), math.radians(-41.04), math.radians(-22.78)),
    Part.ArcOfCircle(Part.Circle(Vector(629.2, 25.9, 0), Vector(0, 0, 1), 6.3), math.radians(139), math.radians(269)),
], False)
sketch3.addConstraint([
    Sketcher.Constraint("Tangent", 0, 2, 1, 1),
    Sketcher.Constraint("Tangent", 1, 2, 2, 1),
    Sketcher.Constraint("Tangent", 2, 2, 3, 1),
    Sketcher.Constraint("Tangent", 3, 2, 4, 1),
    Sketcher.Constraint("Tangent", 4, 2, 5, 1),
    Sketcher.Constraint("Tangent", 5, 2, 6, 1),
    Sketcher.Constraint("Tangent", 6, 2, 7, 2),
    Sketcher.Constraint("Tangent", 7, 1, 8, 1),
    Sketcher.Constraint("Tangent", 8, 2, 9, 1),
    Sketcher.Constraint("Tangent", 9, 2, 10, 1),
    Sketcher.Constraint("Tangent", 10, 2, 11, 2),
    Sketcher.Constraint("Tangent", 11, 1, 12, 1),
    Sketcher.Constraint("Tangent", 12, 2, 0, 1),
    Sketcher.Constraint("Tangent", 13, 2, 14, 1),
    Sketcher.Constraint("Tangent", 14, 2, 15, 2),
    Sketcher.Constraint("Tangent", 15, 1, 16, 1),
    Sketcher.Constraint("Tangent", 16, 2, 17, 2),
    Sketcher.Constraint("Coincident", 17, 1, 18, 1),
    Sketcher.Constraint("Tangent", 18, 2, 19, 1),
    Sketcher.Constraint("Tangent", 19, 2, 20, 2),
    Sketcher.Constraint("Tangent", 20, 1, 21, 1),
    Sketcher.Constraint("Tangent", 21, 2, 13, 1),
    Sketcher.Constraint("Tangent", 22, 2, 23, 1),
    Sketcher.Constraint("Tangent", 23, 2, 24, 2),
    Sketcher.Constraint("Tangent", 24, 1, 25, 1),
    Sketcher.Constraint("Tangent", 25, 2, 26, 1),
    Sketcher.Constraint("Tangent", 26, 2, 27, 1),
    Sketcher.Constraint("Tangent", 27, 2, 22, 1),
    Sketcher.Constraint("Tangent", 28, 2, 29, 1),
    Sketcher.Constraint("Tangent", 29, 2, 30, 1),
    Sketcher.Constraint("Tangent", 30, 2, 31, 1),
    Sketcher.Constraint("Tangent", 31, 2, 32, 2),
    Sketcher.Constraint("Tangent", 32, 1, 33, 1),
    Sketcher.Constraint("Tangent", 33, 2, 28, 1),
    Sketcher.Constraint("Horizontal", 2),
    Sketcher.Constraint("Coincident", 15, 3, 11, 3),
    Sketcher.Constraint("Coincident", 24, 3, 11, 3),
    Sketcher.Constraint("Coincident", 32, 3, 11, 3),
    Sketcher.Constraint("Equal", 1, 3),
    Sketcher.Constraint("Equal", 3, 7),
    Sketcher.Constraint("Equal", 6, 8),
    Sketcher.Constraint("Equal", 4, 12),
    Sketcher.Constraint("Equal", 16, 19),
    Sketcher.Constraint("Equal", 14, 21),
    Sketcher.Constraint("Equal", 19, 23),
    Sketcher.Constraint("Equal", 15, 24),
    Sketcher.Constraint("Equal", 23, 25),
    Sketcher.Constraint("Equal", 8, 27),
    Sketcher.Constraint("Equal", 25, 31),
    Sketcher.Constraint("Equal", 24, 32),
    Sketcher.Constraint("Equal", 31, 33),
    Sketcher.Constraint("Parallel", 0, 13),
    Sketcher.Constraint("Equal", 28, 30),
    Sketcher.Constraint("Radius", 10, Q("1 in")),
    Sketcher.Constraint("Radius", 1, Q("0.5 in")),
    Sketcher.Constraint("Radius", 4, Q("0.75 in")),
    Sketcher.Constraint("Radius", 16, Q("0.25 in")),
    Sketcher.Constraint("Angle", 22, Q("-173 deg")),
    Sketcher.Constraint("Radius", 6, Q("0.375 in")),
    Sketcher.Constraint("Radius", 15, Q("2.5625 in")),
    Sketcher.Constraint("Radius", 29, Q("0.4375 in")),
    Sketcher.Constraint("DistanceY", -1, 1, 20, 3, Q("6.3 in")),
    Sketcher.Constraint("Radius", 20, Q("1.9575 in")),
    Sketcher.Constraint("DistanceX", -1, 1, 11, 3, Q("22.65 in")),
    Sketcher.Constraint("DistanceX", -1, 1, 20, 3, Q("17.25 in")),
    Sketcher.Constraint("DistanceX", 14, 2, 16, 3, Q("0.0959999 in")),
    Sketcher.Constraint("Radius", 11, Q("65.107943 mm")),
    Sketcher.Constraint("Radius", 14, Q("7.557354 mm")),
    Sketcher.Constraint("Radius", 17, Q("123.599263 mm")),
    Sketcher.Constraint("DistanceX", 2, 2, 2, 1, Q("3.288289 mm")),
    Sketcher.Constraint("DistanceY", -1, 1, 1, 3, Q("98.280199 mm")),
    Sketcher.Constraint("DistanceX", -1, 1, 3, 3, Q("449.124699 mm")),
    Sketcher.Constraint("DistanceY", -1, 1, 12, 3, Q("65.948799 mm")),
    Sketcher.Constraint("DistanceX", -1, 1, 17, 3, Q("583.767602 mm")),
    Sketcher.Constraint("DistanceX", -1, 1, 4, 2, Q("434.678899 mm")),
    Sketcher.Constraint("DistanceY", -1, 1, 22, 2, Q("116.492899 mm")),
    Sketcher.Constraint("DistanceX", -1, 1, 24, 1, Q("636.382301 mm")),
    Sketcher.Constraint("DistanceY", 14, 3, 21, 3, Q("19.135099 mm")),
    Sketcher.Constraint("DistanceY", 8, 3, 10, 2, Q("19.4626 mm")),
    Sketcher.Constraint("DistanceY", 14, 2, 21, 3, Q("24.335601 mm")),
    Sketcher.Constraint("DistanceX", 17, 1, 16, 3, Q("10.130701 mm")),
    Sketcher.Constraint("DistanceY", 21, 3, 19, 2, Q("12.092198 mm")),
    Sketcher.Constraint("DistanceX", 22, 2, 27, 3, Q("9.247301 mm")),
    Sketcher.Constraint("DistanceX", 23, 2, 31, 3, Q("10.393601 mm")),
    Sketcher.Constraint("DistanceY", 29, 2, 30, 2, Q("12.537498 mm")),
    Sketcher.Constraint("DistanceX", 28, 2, 30, 2, Q("3.654902 mm")),
    Sketcher.Constraint("DistanceY", -1, 1, 4, 3, Q("92.68486 mm")),
    Sketcher.Constraint("DistanceX", -1, 1, 7, 3, Q("457.464331 mm")),
    Sketcher.Constraint("DistanceX", -1, 1, 8, 3, Q("472.480369 mm")),
    Sketcher.Constraint("DistanceX", -1, 1, 10, 3, Q("486.311741 mm")),
])
pocket1 = body.newObject("PartDesign::Pocket", "Pocket")
pocket1.Profile = sketch3
pocket1.Type = "ThroughAll"

doc.recompute()
